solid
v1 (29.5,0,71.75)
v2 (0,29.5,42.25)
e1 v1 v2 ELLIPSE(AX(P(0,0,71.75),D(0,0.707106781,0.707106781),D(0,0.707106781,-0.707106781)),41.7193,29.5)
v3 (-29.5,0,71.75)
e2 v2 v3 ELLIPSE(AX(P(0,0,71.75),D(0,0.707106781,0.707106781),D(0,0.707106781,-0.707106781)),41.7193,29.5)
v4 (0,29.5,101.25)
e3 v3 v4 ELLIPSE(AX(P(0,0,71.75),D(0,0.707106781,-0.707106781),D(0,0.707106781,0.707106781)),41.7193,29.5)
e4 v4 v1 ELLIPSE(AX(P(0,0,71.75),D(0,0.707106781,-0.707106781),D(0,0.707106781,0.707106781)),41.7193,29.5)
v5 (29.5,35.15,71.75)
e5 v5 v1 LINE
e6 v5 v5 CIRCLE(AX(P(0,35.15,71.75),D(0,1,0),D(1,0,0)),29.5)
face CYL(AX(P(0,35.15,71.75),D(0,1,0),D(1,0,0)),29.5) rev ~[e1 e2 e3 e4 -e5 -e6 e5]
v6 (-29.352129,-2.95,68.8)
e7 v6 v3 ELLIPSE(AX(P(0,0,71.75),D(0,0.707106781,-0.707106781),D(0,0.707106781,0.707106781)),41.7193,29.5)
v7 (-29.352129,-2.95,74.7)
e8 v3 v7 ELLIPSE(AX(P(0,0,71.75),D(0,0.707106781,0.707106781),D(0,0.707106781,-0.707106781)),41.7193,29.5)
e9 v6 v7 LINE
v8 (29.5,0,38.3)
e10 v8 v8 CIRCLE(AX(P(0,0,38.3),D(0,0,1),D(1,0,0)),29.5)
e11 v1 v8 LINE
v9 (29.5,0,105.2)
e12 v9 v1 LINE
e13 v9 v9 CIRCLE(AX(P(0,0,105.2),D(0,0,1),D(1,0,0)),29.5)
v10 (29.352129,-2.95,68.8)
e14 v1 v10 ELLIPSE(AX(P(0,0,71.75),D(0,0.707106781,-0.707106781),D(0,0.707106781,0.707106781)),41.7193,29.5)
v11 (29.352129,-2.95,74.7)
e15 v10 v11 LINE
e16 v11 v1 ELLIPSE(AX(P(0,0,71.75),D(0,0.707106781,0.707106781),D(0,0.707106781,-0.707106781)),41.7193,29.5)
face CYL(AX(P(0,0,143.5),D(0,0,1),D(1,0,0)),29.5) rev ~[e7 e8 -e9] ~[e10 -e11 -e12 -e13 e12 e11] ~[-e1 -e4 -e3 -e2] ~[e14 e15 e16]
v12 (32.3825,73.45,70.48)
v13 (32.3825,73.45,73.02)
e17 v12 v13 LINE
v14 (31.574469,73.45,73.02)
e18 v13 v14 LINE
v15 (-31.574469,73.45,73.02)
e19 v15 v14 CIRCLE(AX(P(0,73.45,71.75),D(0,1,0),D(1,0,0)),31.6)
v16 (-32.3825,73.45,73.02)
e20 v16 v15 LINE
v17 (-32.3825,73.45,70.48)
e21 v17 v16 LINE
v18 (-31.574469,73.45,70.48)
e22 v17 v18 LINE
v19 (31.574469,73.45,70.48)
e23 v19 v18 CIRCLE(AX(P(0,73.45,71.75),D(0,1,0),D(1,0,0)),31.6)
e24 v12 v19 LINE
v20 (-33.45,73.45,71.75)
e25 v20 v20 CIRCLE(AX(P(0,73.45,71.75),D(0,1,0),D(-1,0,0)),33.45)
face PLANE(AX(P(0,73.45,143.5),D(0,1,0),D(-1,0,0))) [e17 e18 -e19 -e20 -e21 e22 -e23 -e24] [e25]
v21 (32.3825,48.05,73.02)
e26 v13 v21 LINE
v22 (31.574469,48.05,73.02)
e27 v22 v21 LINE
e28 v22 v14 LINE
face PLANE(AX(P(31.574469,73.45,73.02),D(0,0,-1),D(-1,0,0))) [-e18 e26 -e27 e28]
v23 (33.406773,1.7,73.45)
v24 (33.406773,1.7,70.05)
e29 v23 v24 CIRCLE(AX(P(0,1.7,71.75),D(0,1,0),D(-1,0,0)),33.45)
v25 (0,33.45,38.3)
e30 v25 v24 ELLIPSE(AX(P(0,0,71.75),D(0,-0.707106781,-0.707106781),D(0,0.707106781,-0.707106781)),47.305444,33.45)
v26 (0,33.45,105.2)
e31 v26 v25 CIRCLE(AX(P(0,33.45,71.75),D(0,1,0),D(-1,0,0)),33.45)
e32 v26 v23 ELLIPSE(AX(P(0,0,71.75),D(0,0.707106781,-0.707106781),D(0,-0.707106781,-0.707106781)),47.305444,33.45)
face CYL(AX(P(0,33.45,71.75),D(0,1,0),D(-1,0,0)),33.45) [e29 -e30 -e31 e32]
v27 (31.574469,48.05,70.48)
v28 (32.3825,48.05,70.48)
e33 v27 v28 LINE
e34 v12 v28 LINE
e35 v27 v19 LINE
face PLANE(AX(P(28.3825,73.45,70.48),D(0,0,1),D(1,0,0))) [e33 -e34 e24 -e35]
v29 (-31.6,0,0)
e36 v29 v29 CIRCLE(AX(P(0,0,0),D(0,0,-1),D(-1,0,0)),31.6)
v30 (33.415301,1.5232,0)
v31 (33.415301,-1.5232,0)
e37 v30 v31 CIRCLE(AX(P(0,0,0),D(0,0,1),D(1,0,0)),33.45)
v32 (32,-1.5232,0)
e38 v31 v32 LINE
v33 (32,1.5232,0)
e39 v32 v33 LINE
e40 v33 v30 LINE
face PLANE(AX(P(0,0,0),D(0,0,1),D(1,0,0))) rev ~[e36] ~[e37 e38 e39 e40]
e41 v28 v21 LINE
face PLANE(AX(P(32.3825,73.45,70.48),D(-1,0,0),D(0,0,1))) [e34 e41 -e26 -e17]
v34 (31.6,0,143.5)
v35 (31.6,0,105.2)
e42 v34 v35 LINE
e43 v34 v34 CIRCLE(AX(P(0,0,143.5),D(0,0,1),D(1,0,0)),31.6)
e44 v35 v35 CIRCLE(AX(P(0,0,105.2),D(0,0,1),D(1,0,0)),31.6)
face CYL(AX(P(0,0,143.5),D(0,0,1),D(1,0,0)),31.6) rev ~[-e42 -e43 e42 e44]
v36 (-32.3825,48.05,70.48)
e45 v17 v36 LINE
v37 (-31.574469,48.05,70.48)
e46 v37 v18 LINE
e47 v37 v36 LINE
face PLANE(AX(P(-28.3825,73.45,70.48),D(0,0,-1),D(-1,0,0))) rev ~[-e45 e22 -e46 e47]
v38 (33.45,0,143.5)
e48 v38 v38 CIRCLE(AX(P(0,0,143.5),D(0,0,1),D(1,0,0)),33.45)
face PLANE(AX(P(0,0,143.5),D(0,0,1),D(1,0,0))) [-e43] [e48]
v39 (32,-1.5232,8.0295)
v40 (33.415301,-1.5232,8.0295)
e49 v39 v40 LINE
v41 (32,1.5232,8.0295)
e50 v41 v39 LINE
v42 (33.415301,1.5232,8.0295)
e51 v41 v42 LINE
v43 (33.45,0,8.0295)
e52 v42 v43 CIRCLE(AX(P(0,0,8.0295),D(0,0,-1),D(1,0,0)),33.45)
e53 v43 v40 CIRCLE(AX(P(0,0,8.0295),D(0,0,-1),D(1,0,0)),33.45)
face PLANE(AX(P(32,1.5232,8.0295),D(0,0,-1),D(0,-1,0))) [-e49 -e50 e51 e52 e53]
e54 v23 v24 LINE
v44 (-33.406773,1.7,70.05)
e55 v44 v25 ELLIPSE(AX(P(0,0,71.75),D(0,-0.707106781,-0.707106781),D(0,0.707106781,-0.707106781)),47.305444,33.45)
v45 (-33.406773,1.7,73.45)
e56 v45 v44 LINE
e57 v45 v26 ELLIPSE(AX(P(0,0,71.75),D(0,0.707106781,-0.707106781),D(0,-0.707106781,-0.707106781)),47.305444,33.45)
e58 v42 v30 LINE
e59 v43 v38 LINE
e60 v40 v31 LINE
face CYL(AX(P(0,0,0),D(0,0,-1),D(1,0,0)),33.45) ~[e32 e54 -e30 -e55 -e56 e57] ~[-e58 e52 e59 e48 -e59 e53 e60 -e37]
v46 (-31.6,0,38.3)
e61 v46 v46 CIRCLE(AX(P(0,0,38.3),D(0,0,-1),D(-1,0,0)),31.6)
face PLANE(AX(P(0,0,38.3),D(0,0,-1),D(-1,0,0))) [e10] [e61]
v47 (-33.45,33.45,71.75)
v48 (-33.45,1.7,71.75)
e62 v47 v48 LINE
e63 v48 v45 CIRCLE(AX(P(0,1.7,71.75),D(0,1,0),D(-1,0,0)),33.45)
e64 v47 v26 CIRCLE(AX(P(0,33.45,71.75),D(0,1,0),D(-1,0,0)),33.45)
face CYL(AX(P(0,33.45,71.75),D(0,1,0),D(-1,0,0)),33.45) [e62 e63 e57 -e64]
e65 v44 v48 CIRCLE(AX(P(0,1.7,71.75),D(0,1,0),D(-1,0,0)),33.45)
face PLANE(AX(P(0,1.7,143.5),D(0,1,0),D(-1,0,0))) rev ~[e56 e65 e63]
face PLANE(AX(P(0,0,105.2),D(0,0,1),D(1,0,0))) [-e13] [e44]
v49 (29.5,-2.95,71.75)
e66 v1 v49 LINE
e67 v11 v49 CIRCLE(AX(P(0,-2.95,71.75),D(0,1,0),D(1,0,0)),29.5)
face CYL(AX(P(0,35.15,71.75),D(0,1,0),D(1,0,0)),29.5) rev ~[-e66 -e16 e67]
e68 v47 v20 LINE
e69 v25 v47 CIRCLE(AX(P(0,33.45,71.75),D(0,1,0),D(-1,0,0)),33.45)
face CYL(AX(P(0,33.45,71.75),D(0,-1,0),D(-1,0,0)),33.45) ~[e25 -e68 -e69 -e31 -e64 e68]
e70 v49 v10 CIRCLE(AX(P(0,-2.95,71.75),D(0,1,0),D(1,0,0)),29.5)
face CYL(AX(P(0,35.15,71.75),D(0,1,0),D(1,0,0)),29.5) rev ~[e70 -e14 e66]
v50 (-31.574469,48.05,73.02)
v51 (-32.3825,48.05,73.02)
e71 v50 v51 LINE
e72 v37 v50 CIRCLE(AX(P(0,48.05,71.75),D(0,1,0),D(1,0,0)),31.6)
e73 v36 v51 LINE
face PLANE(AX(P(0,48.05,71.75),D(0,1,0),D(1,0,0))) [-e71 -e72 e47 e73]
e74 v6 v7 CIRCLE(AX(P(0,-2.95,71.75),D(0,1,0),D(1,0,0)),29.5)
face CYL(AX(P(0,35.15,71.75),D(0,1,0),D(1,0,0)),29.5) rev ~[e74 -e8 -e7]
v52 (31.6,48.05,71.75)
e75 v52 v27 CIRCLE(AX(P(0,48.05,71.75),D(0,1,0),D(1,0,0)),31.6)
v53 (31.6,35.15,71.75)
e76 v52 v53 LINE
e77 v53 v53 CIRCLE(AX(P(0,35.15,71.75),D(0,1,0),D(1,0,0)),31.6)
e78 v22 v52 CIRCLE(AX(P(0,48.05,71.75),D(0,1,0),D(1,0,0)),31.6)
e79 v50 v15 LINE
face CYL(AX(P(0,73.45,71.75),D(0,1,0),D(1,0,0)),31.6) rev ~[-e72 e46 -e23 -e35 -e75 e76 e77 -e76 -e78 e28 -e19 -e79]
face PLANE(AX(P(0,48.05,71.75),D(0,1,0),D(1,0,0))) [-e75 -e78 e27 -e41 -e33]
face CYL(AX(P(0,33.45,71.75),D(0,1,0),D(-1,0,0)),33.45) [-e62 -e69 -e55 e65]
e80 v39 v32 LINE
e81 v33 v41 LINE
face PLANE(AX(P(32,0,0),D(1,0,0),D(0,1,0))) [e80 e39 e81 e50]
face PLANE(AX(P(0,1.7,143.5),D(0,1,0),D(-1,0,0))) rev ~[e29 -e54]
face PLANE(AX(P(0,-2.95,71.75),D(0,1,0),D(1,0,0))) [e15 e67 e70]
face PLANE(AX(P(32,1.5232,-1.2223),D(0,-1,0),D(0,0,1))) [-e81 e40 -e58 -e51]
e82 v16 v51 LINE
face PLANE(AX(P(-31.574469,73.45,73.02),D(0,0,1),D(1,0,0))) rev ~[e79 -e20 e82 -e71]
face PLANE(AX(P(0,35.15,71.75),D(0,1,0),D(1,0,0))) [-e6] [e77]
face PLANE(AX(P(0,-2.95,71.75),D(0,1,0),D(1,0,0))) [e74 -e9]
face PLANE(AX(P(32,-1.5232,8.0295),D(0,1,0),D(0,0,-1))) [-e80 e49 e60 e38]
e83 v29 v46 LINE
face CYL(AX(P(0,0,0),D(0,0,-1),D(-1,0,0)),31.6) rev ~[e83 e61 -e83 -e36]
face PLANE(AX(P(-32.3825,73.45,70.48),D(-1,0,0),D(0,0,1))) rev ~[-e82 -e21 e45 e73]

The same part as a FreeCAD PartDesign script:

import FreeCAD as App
import Part
import Sketcher
from FreeCAD import Vector
Q = App.Units.Quantity


def add_polygon(sketch, points):
    """Adds a closed chain of lines whose ends are joined by coincident constraints."""
    first, n = sketch.GeometryCount, len(points)
    for a, b in zip(points, points[1:] + points[:1]):
        sketch.addGeometry(Part.LineSegment(App.Vector(*a, 0), App.Vector(*b, 0)), False)
    for i in range(n):
        sketch.addConstraint(Sketcher.Constraint("Coincident", first + i, 2, first + (i + 1) % n, 1))

doc = App.newDocument("Part")
body = doc.addObject("PartDesign::Body", "Body")

# Sketch on XY plane
sketch1 = body.newObject("Sketcher::SketchObject", "Sketch")
sketch1.AttachmentSupport = (doc.getObject("XY_Plane"), [""])
sketch1.MapMode = "FlatFace"
sketch1.addGeometry(Part.Circle(Vector(0, 0, 0), Vector(0, 0, 1), 33), False)
sketch1.addConstraint([
    Sketcher.Constraint("Coincident", 0, 3, -1, 1),
    Sketcher.Constraint("Diameter", 0, Q("66.9 mm")),
])
pad1 = body.newObject("PartDesign::Pad", "Pad")
pad1.Profile = sketch1
pad1.Length = 143.5

# Sketch on XZ plane
sketch2 = body.newObject("Sketcher::SketchObject", "Sketch001")
sketch2.AttachmentSupport = (doc.getObject("XZ_Plane"), [""])
sketch2.MapMode = "FlatFace"
sketch2.AttachmentOffset = App.Placement(Vector(0, 0, -33.45), App.Rotation())
sketch2.addGeometry(Part.Circle(Vector(0, 72, 0), Vector(0, 0, 1), 33), False)
sketch2.addConstraint([
    Sketcher.Constraint("PointOnObject", 0, 3, -2),
    Sketcher.Constraint("Diameter", 0, Q("66.9 mm")),
    Sketcher.Constraint("DistanceY", -1, 1, 0, 3, Q("71.75 mm")),
])
pad2 = body.newObject("PartDesign::Pad", "Pad001")
pad2.Profile = sketch2
pad2.Type = "TwoLengths"
pad2.Length = 40
pad2.Length2 = 31.75
pad2.Reversed = True

# Sketch on XZ plane
sketch3 = body.newObject("Sketcher::SketchObject", "Sketch002")
sketch3.AttachmentSupport = (doc.getObject("XZ_Plane"), [""])
sketch3.MapMode = "FlatFace"
sketch3.AttachmentOffset = App.Placement(Vector(0, 0, -73.45), App.Rotation())
sketch3.addGeometry(Part.Circle(Vector(0, 72, 0), Vector(0, 0, 1), 32), False)
sketch3.addConstraint([
    Sketcher.Constraint("PointOnObject", 0, 3, -2),
    Sketcher.Constraint("Diameter", 0, Q("63.2 mm")),
    Sketcher.Constraint("DistanceY", -1, 1, 0, 3, Q("71.75 mm")),
])
pocket1 = body.newObject("PartDesign::Pocket", "Pocket")
pocket1.Profile = sketch3
pocket1.Length = 38.3
pocket1.Reversed = True

# Sketch on XZ plane
sketch4 = body.newObject("Sketcher::SketchObject", "Sketch003")
sketch4.AttachmentSupport = (doc.getObject("XZ_Plane"), [""])
sketch4.MapMode = "FlatFace"
sketch4.AttachmentOffset = App.Placement(Vector(0, 0, -35.15), App.Rotation())
sketch4.addGeometry(Part.Circle(Vector(0, 72, 0), Vector(0, 0, 1), 30), False)
sketch4.addConstraint([
    Sketcher.Constraint("PointOnObject", 0, 3, -2),
    Sketcher.Constraint("Diameter", 0, Q("59 mm")),
    Sketcher.Constraint("DistanceY", -1, 1, 0, 3, Q("71.75 mm")),
])
pocket2 = body.newObject("PartDesign::Pocket", "Pocket001")
pocket2.Profile = sketch4
pocket2.Length = 38.1
pocket2.Reversed = True

# Sketch on XY plane
sketch5 = body.newObject("Sketcher::SketchObject", "Sketch004")
sketch5.AttachmentSupport = (doc.getObject("XY_Plane"), [""])
sketch5.MapMode = "FlatFace"
sketch5.AttachmentOffset = App.Placement(Vector(0, 0, 143.5), App.Rotation())
sketch5.addGeometry(Part.Circle(Vector(0, 0, 0), Vector(0, 0, 1), 30), False)
sketch5.addConstraint([
    Sketcher.Constraint("Coincident", 0, 3, -1, 1),
    Sketcher.Constraint("Diameter", 0, Q("59 mm")),
])
pocket3 = body.newObject("PartDesign::Pocket", "Pocket002")
pocket3.Profile = sketch5
pocket3.Length = 177.8

# Sketch on XY plane
sketch6 = body.newObject("Sketcher::SketchObject", "Sketch005")
sketch6.AttachmentSupport = (doc.getObject("XY_Plane"), [""])
sketch6.MapMode = "FlatFace"
sketch6.AttachmentOffset = App.Placement(Vector(0, 0, 143.5), App.Rotation())
sketch6.addGeometry([
    Part.Circle(Vector(0, 0, 0), Vector(0, 0, 1), 32),
    Part.Circle(Vector(0, 0, 0), Vector(0, 0, 1), 30),
], False)
sketch6.addConstraint([
    Sketcher.Constraint("Coincident", 0, 3, -1, 1),
    Sketcher.Constraint("Coincident", 1, 3, -1, 1),
    Sketcher.Constraint("Diameter", 0, Q("63.2 mm")),
    Sketcher.Constraint("Diameter", 1, Q("59 mm")),
])
pocket4 = body.newObject("PartDesign::Pocket", "Pocket003")
pocket4.Profile = sketch6
pocket4.Length = 38.3

# Sketch on XY plane
sketch7 = body.newObject("Sketcher::SketchObject", "Sketch006")
sketch7.AttachmentSupport = (doc.getObject("XY_Plane"), [""])
sketch7.MapMode = "FlatFace"
sketch7.addGeometry([
    Part.Circle(Vector(0, 0, 0), Vector(0, 0, 1), 32),
    Part.Circle(Vector(0, 0, 0), Vector(0, 0, 1), 30),
], False)
sketch7.addConstraint([
    Sketcher.Constraint("Coincident", 0, 3, -1, 1),
    Sketcher.Constraint("Coincident", 1, 3, -1, 1),
    Sketcher.Constraint("Diameter", 0, Q("63.2 mm")),
    Sketcher.Constraint("Diameter", 1, Q("59 mm")),
])
pocket5 = body.newObject("PartDesign::Pocket", "Pocket004")
pocket5.Profile = sketch7
pocket5.Length = 38.3
pocket5.Reversed = True

# Sketch on XZ plane
sketch8 = body.newObject("Sketcher::SketchObject", "Sketch007")
sketch8.AttachmentSupport = (doc.getObject("XZ_Plane"), [""])
sketch8.MapMode = "FlatFace"
sketch8.AttachmentOffset = App.Placement(Vector(0, 0, -73.45), App.Rotation())
add_polygon(sketch8, [(28.4, 73), (32.4, 73), (32.4, 70.5), (28.4, 70.5)])  # lines 0-3
add_polygon(sketch8, [(-28.4, 70.5), (-32.4, 70.5), (-32.4, 73), (-28.4, 73)])  # lines 4-7
sketch8.addConstraint([
    Sketcher.Constraint("Horizontal", 0),
    Sketcher.Constraint("Vertical", 1),
    Sketcher.Constraint("Horizontal", 2),
    Sketcher.Constraint("Vertical", 3),
    Sketcher.Constraint("Horizontal", 4),
    Sketcher.Constraint("Vertical", 5),
    Sketcher.Constraint("Horizontal", 6),
    Sketcher.Constraint("Vertical", 7),
    Sketcher.Constraint("Symmetric", 1, 2, 4, 2, -2),
    Sketcher.Constraint("Symmetric", 3, 2, 6, 2, -2),
    Sketcher.Constraint("DistanceX", 0, 1, 0, 2, Q("4 mm")),
    Sketcher.Constraint("DistanceY", 1, 2, 1, 1, Q("2.54 mm")),
    Sketcher.Constraint("DistanceY", -1, 1, 0, 2, Q("73.02 mm")),
    Sketcher.Constraint("DistanceX", 4, 2, 2, 2, Q("60.765 mm")),
])
pocket6 = body.newObject("PartDesign::Pocket", "Pocket005")
pocket6.Profile = sketch8
pocket6.Length = 25.4
pocket6.Reversed = True

# Sketch on YZ plane
sketch9 = body.newObject("Sketcher::SketchObject", "Sketch008")
sketch9.AttachmentSupport = (doc.getObject("YZ_Plane"), [""])
sketch9.MapMode = "FlatFace"
sketch9.AttachmentOffset = App.Placement(Vector(0, 0, 32), App.Rotation())
add_polygon(sketch9, [(-1.5, 8), (-1.5, -1.2), (1.5, -1.2), (1.5, 8)])  # lines 0-3
sketch9.addConstraint([
    Sketcher.Constraint("Vertical", 0),
    Sketcher.Constraint("Horizontal", 1),
    Sketcher.Constraint("Vertical", 2),
    Sketcher.Constraint("Horizontal", 3),
    Sketcher.Constraint("DistanceX", 1, 1, 1, 2, Q("3.0464 mm")),
    Sketcher.Constraint("DistanceY", 0, 2, 0, 1, Q("9.2518 mm")),
    Sketcher.Constraint("DistanceX", 0, 2, -1, 1, Q("1.5232 mm")),
    Sketcher.Constraint("DistanceY", 0, 2, -1, 1, Q("1.2223 mm")),
])
pocket7 = body.newObject("PartDesign::Pocket", "Pocket006")
pocket7.Profile = sketch9
pocket7.Length = 25.4
pocket7.Reversed = True

doc.recompute()
